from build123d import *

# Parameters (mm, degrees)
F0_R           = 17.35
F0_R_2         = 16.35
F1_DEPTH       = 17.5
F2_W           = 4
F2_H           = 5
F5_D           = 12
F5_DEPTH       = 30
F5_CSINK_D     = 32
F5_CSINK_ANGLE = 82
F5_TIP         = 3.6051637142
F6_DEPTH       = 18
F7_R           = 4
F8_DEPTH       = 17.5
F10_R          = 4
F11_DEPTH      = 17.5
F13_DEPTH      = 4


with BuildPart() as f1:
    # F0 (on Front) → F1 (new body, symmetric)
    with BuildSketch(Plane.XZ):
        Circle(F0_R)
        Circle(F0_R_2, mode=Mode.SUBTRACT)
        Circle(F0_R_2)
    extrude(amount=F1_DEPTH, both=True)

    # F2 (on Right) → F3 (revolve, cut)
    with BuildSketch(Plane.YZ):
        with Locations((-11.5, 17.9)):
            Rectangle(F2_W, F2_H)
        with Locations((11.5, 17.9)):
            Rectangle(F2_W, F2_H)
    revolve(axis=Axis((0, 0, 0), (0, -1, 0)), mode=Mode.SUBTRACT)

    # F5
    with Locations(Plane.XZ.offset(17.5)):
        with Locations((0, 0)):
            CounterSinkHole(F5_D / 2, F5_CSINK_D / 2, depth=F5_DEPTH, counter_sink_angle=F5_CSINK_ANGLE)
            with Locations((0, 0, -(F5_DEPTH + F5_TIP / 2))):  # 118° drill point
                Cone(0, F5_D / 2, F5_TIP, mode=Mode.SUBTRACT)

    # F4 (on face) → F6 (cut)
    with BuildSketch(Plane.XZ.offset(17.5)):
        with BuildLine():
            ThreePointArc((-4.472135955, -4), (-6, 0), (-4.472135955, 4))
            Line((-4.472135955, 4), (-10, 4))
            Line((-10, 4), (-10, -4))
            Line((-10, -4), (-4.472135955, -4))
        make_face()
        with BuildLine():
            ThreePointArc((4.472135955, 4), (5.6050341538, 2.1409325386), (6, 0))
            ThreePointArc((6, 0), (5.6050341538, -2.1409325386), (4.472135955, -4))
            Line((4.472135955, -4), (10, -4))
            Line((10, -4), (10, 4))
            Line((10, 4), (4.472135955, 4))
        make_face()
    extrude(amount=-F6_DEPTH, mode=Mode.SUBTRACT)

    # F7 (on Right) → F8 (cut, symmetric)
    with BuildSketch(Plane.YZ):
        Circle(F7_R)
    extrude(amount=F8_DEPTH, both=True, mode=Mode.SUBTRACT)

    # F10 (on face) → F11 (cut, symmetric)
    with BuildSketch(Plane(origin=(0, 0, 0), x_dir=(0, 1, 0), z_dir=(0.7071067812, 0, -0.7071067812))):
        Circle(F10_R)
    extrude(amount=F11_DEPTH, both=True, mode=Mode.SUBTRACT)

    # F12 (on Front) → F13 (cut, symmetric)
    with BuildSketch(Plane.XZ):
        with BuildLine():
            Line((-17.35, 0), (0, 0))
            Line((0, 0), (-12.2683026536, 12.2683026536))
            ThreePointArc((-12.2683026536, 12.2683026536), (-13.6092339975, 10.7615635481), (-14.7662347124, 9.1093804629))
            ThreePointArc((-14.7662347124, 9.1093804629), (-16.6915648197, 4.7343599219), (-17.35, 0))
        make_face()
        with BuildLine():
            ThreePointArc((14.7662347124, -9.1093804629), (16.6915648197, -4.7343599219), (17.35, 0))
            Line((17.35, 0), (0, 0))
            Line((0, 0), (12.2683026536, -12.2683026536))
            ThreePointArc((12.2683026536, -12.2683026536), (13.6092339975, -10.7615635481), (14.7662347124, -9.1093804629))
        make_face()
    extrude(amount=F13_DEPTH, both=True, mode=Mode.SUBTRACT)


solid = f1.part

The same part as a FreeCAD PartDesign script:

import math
import FreeCAD as App
import Part
import Sketcher

V = App.Vector
Q = App.Units.Quantity

doc = App.newDocument("Part")
body = doc.addObject("PartDesign::Body", "Body")

# Sketch on XZ plane
sketch1 = body.newObject("Sketcher::SketchObject", "Sketch")
sketch1.AttachmentSupport = (doc.getObject("XZ_Plane"), [""])
sketch1.MapMode = "FlatFace"
sketch1.addGeometry(Part.Circle(V(0, 0, 0), V(0, 0, 1), 17), False)
sketch1.addConstraint([
    Sketcher.Constraint("Coincident", 0, 3, -1, 1),
    Sketcher.Constraint("Diameter", 0, 34.7),
])
pad1 = body.newObject("PartDesign::Pad", "Pad")
pad1.Profile = sketch1
pad1.Length = 35
pad1.Midplane = True

# Sketch on YZ plane
sketch2 = body.newObject("Sketcher::SketchObject", "Sketch001")
sketch2.AttachmentSupport = (doc.getObject("YZ_Plane"), [""])
sketch2.MapMode = "FlatFace"
sketch2.addGeometry([
    Part.LineSegment(V(-13.5, 20.4, 0), V(-13.5, 15.4, 0)),  # 0
    Part.LineSegment(V(-13.5, 15.4, 0), V(-9.5, 15.4, 0)),  # 1
    Part.LineSegment(V(-9.5, 15.4, 0), V(-9.5, 20.4, 0)),  # 2
    Part.LineSegment(V(-9.5, 20.4, 0), V(-13.5, 20.4, 0)),  # 3
    Part.LineSegment(V(9.5, 20.4, 0), V(9.5, 15.4, 0)),  # 4
    Part.LineSegment(V(9.5, 15.4, 0), V(13.5, 15.4, 0)),  # 5
    Part.LineSegment(V(13.5, 15.4, 0), V(13.5, 20.4, 0)),  # 6
    Part.LineSegment(V(13.5, 20.4, 0), V(9.5, 20.4, 0)),  # 7
], False)
sketch2.addConstraint([
    Sketcher.Constraint("Coincident", 0, 2, 1, 1),
    Sketcher.Constraint("Coincident", 1, 2, 2, 1),
    Sketcher.Constraint("Coincident", 2, 2, 3, 1),
    Sketcher.Constraint("Coincident", 3, 2, 0, 1),
    Sketcher.Constraint("Coincident", 4, 2, 5, 1),
    Sketcher.Constraint("Coincident", 5, 2, 6, 1),
    Sketcher.Constraint("Coincident", 6, 2, 7, 1),
    Sketcher.Constraint("Coincident", 7, 2, 4, 1),
    Sketcher.Constraint("Vertical", 0),
    Sketcher.Constraint("Horizontal", 1),
    Sketcher.Constraint("Vertical", 2),
    Sketcher.Constraint("Horizontal", 3),
    Sketcher.Constraint("Vertical", 4),
    Sketcher.Constraint("Horizontal", 5),
    Sketcher.Constraint("Vertical", 6),
    Sketcher.Constraint("Horizontal", 7),
    Sketcher.Constraint("Symmetric", 1, 2, 4, 2, -2),
    Sketcher.Constraint("Symmetric", 3, 2, 6, 2, -2),
    Sketcher.Constraint("DistanceX", 1, 1, 1, 2, 4.0),
    Sketcher.Constraint("DistanceY", 0, 2, 0, 1, 5.0),
    Sketcher.Constraint("DistanceX", 1, 2, 4, 2, 19.0),
    Sketcher.Constraint("DistanceY", -1, 1, 0, 2, 15.4),
])
groove = body.newObject("PartDesign::Groove", "Groove")
groove.Profile = sketch2
groove.ReferenceAxis = (sketch2, ["H_Axis"])
groove.Angle = 360

# Sketch on XZ plane
sketch3 = body.newObject("Sketcher::SketchObject", "Sketch002")
sketch3.AttachmentSupport = (doc.getObject("XZ_Plane"), [""])
sketch3.MapMode = "FlatFace"
sketch3.AttachmentOffset = App.Placement(V(0, 0, 17.5), App.Rotation())
sketch3.addGeometry(Part.Circle(V(0, 0, 0), V(0, 0, 1), 6), False)
sketch3.addConstraint([
    Sketcher.Constraint("Coincident", 0, 3, -1, 1),
    Sketcher.Constraint("Diameter", 0, 12.0),
])
doc.recompute()
hole = body.newObject("PartDesign::Hole", "Hole")
hole.Profile = sketch3
hole.ThreadType = "None"
hole.Diameter = 12
hole.DepthType = "Dimension"
hole.Depth = 30
hole.DrillPoint = "Angled"
hole.DrillPointAngle = 118
hole.HoleCutType = "Countersink"
hole.HoleCutDiameter = 32
hole.HoleCutCountersinkAngle = 82

# Sketch on XZ plane
sketch4 = body.newObject("Sketcher::SketchObject", "Sketch003")
sketch4.AttachmentSupport = (doc.getObject("XZ_Plane"), [""])
sketch4.MapMode = "FlatFace"
sketch4.AttachmentOffset = App.Placement(V(0, 0, 17.5), App.Rotation())
sketch4.addGeometry([
    Part.ArcOfCircle(Part.Circle(V(0, 0, 0), V(0, 0, 1), 6), math.radians(138), math.radians(222)),  # 0
    Part.LineSegment(V(-4.5, 4, 0), V(-10, 4, 0)),  # 1
    Part.LineSegment(V(-10, 4, 0), V(-10, -4, 0)),  # 2
    Part.LineSegment(V(-10, -4, 0), V(-4.5, -4, 0)),  # 3
    Part.ArcOfCircle(Part.Circle(V(0, 0, 0), V(0, 0, 1), 6), math.radians(0), math.radians(42)),  # 4
    Part.ArcOfCircle(Part.Circle(V(0, 0, 0), V(0, 0, 1), 6), math.radians(-42), math.radians(0)),  # 5
    Part.LineSegment(V(4.5, -4, 0), V(10, -4, 0)),  # 6
    Part.LineSegment(V(10, -4, 0), V(10, 4, 0)),  # 7
    Part.LineSegment(V(10, 4, 0), V(4.5, 4, 0)),  # 8
], False)
sketch4.addConstraint([
    Sketcher.Constraint("Coincident", 0, 1, 1, 1),
    Sketcher.Constraint("Coincident", 1, 2, 2, 1),
    Sketcher.Constraint("Coincident", 2, 2, 3, 1),
    Sketcher.Constraint("Coincident", 3, 2, 0, 2),
    Sketcher.Constraint("Tangent", 4, 1, 5, 2),
    Sketcher.Constraint("Coincident", 5, 1, 6, 1),
    Sketcher.Constraint("Coincident", 6, 2, 7, 1),
    Sketcher.Constraint("Coincident", 7, 2, 8, 1),
    Sketcher.Constraint("Coincident", 8, 2, 4, 2),
    Sketcher.Constraint("Horizontal", 1),
    Sketcher.Constraint("Vertical", 2),
    Sketcher.Constraint("Horizontal", 3),
    Sketcher.Constraint("Horizontal", 6),
    Sketcher.Constraint("Vertical", 7),
    Sketcher.Constraint("Horizontal", 8),
    Sketcher.Constraint("Coincident", 0, 3, -1, 1),
    Sketcher.Constraint("Coincident", 4, 3, -1, 1),
    Sketcher.Constraint("Equal", 0, 4),
    Sketcher.Constraint("Equal", 4, 5),
    Sketcher.Constraint("Symmetric", 1, 2, 6, 2, -1, 1),
    Sketcher.Constraint("PointOnObject", 4, 1, -1),
    Sketcher.Constraint("Horizontal", 3, 2, 5, 1),
    Sketcher.Constraint("Horizontal", 1, 2, 7, 2),
    Sketcher.Constraint("Radius", 0, 6.0),
    Sketcher.Constraint("DistanceY", 2, 2, 2, 1, 8.0),
    Sketcher.Constraint("DistanceX", 1, 2, -1, 1, 10.0),
])
pocket1 = body.newObject("PartDesign::Pocket", "Pocket")
pocket1.Profile = sketch4
pocket1.Length = 18

# Sketch on YZ plane
sketch5 = body.newObject("Sketcher::SketchObject", "Sketch004")
sketch5.AttachmentSupport = (doc.getObject("YZ_Plane"), [""])
sketch5.MapMode = "FlatFace"
sketch5.addGeometry(Part.Circle(V(0, 0, 0), V(0, 0, 1), 4), False)
sketch5.addConstraint([
    Sketcher.Constraint("Coincident", 0, 3, -1, 1),
    Sketcher.Constraint("Diameter", 0, 8.0),
])
pocket2 = body.newObject("PartDesign::Pocket", "Pocket001")
pocket2.Profile = sketch5
pocket2.Length = 35
pocket2.Midplane = True

# Sketch on an angled plane
sketch6 = body.newObject("Sketcher::SketchObject", "Sketch005")
sketch6.Placement = App.Placement(V(0, 0, 0), App.Rotation(V(0, 1, 0), V(0.707106781, 0, 0.707106781), V(0.707106781, 0, -0.707106781), "ZXY"))
sketch6.addGeometry(Part.Circle(V(0, 0, 0), V(0, 0, 1), 4), False)
sketch6.addConstraint([
    Sketcher.Constraint("Coincident", 0, 3, -1, 1),
    Sketcher.Constraint("Diameter", 0, 8.0),
])
pocket3 = body.newObject("PartDesign::Pocket", "Pocket002")
pocket3.Profile = sketch6
pocket3.Length = 35
pocket3.Midplane = True

# Sketch on XZ plane
sketch7 = body.newObject("Sketcher::SketchObject", "Sketch006")
sketch7.AttachmentSupport = (doc.getObject("XZ_Plane"), [""])
sketch7.MapMode = "FlatFace"
sketch7.addGeometry([
    Part.LineSegment(V(-17.4, 0, 0), V(0, 0, 0)),  # 0
    Part.LineSegment(V(0, 0, 0), V(-12.3, 12.3, 0)),  # 1
    Part.ArcOfCircle(Part.Circle(V(0, 0, 0), V(0, 0, 1), 17.4), math.radians(135), math.radians(148.33)),  # 2
    Part.ArcOfCircle(Part.Circle(V(0, 0, 0), V(0, 0, 1), 17.4), math.radians(148), math.radians(180)),  # 3
    Part.ArcOfCircle(Part.Circle(V(0, 0, 0), V(0, 0, 1), 17.4), math.radians(-32), math.radians(0)),  # 4
    Part.LineSegment(V(17.4, 0, 0), V(0, 0, 0)),  # 5
    Part.LineSegment(V(0, 0, 0), V(12.3, -12.3, 0)),  # 6
    Part.ArcOfCircle(Part.Circle(V(0, 0, 0), V(0, 0, 1), 17.4), math.radians(-45), math.radians(-31.67)),  # 7
], False)
sketch7.addConstraint([
    Sketcher.Constraint("Coincident", 0, 2, 1, 1),
    Sketcher.Constraint("Coincident", 1, 2, 2, 1),
    Sketcher.Constraint("Tangent", 2, 2, 3, 1),
    Sketcher.Constraint("Coincident", 3, 2, 0, 1),
    Sketcher.Constraint("Coincident", 4, 2, 5, 1),
    Sketcher.Constraint("Coincident", 5, 2, 6, 1),
    Sketcher.Constraint("Coincident", 6, 2, 7, 1),
    Sketcher.Constraint("Tangent", 7, 2, 4, 1),
    Sketcher.Constraint("Horizontal", 0),
    Sketcher.Constraint("Horizontal", 5),
    Sketcher.Constraint("Coincident", 2, 3, -1, 1),
    Sketcher.Constraint("Coincident", 4, 3, -1, 1),
    Sketcher.Constraint("Coincident", 0, 2, -1, 1),
    Sketcher.Constraint("Coincident", 5, 2, -1, 1),
    Sketcher.Constraint("Equal", 2, 3),
    Sketcher.Constraint("Equal", 3, 4),
    Sketcher.Constraint("Equal", 4, 7),
    Sketcher.Constraint("Parallel", 1, 6),
    Sketcher.Constraint("Angle", 1, Q("135 deg")),
    Sketcher.Constraint("Radius", 2, 17.35),
    Sketcher.Constraint("DistanceY", -1, 1, 2, 2, 9.10938),
    Sketcher.Constraint("DistanceY", 7, 2, -1, 1, 9.10938),
])
pocket4 = body.newObject("PartDesign::Pocket", "Pocket003")
pocket4.Profile = sketch7
pocket4.Length = 8
pocket4.Midplane = True

doc.recompute()
